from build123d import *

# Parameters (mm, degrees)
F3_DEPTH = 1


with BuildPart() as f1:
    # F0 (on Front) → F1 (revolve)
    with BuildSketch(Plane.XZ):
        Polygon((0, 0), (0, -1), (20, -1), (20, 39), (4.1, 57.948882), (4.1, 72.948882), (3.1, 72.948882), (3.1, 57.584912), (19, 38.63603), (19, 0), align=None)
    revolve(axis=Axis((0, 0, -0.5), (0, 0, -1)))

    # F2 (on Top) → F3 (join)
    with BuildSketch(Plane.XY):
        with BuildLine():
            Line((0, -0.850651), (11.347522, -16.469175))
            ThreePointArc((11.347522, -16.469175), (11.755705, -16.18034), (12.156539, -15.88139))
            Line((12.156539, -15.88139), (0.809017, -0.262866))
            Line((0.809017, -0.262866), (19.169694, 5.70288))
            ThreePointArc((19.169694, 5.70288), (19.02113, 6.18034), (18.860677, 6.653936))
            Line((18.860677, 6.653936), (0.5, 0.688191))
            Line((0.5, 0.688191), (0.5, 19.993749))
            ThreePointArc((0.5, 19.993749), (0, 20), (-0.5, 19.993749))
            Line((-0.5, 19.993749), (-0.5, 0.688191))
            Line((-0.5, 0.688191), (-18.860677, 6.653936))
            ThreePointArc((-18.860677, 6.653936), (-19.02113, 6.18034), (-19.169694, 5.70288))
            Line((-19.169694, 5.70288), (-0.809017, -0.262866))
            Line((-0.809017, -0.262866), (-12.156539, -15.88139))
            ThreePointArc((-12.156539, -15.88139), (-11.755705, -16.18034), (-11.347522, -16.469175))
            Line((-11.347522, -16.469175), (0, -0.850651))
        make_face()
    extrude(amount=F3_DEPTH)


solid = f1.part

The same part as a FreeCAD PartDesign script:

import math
import FreeCAD as App
import Part
import Sketcher
Q = App.Units.Quantity


def add_polygon(sketch, points):
    """Adds a closed chain of lines whose ends are joined by coincident constraints."""
    first, n = sketch.GeometryCount, len(points)
    for a, b in zip(points, points[1:] + points[:1]):
        sketch.addGeometry(Part.LineSegment(App.Vector(*a, 0), App.Vector(*b, 0)), False)
    for i in range(n):
        sketch.addConstraint(Sketcher.Constraint("Coincident", first + i, 2, first + (i + 1) % n, 1))

doc = App.newDocument("Part")
params = doc.addObject("Spreadsheet::Sheet", "Params")
for row, (alias, value) in enumerate([
    ("sketch1_width", "20 mm"),
    ("sketch1_width2", "1 mm"),
    ("sketch1_height", "40 mm"),
    ("sketch1_height2", "15 mm"),
    ("revolution_angle", "360 deg"),
    ("pad1_length", "1 mm"),
], start=1):
    params.set(f"A{row}", alias)
    params.set(f"B{row}", "=" + value)
    params.setAlias(f"B{row}", alias)

body = doc.addObject("PartDesign::Body", "Body")

# Sketch on XZ plane
sketch1 = doc.addObject("Sketcher::SketchObject", "Sketch")
body.addObject(sketch1)
sketch1.AttachmentSupport = (doc.XZ_Plane, [""])
sketch1.MapMode = "FlatFace"
add_polygon(sketch1, [(0, 0), (0, -1), (20, -1), (20, 39), (4.1, 57.9), (4.1, 72.9), (3.1, 72.9), (3.1, 57.6), (19, 38.6), (19, 0)])  # lines 0-9
sketch1.addConstraint(Sketcher.Constraint("Vertical", 0))
sketch1.addConstraint(Sketcher.Constraint("Horizontal", 1))
sketch1.addConstraint(Sketcher.Constraint("Vertical", 2))
sketch1.addConstraint(Sketcher.Constraint("Vertical", 4))
sketch1.addConstraint(Sketcher.Constraint("Horizontal", 5))
sketch1.addConstraint(Sketcher.Constraint("Vertical", 6))
sketch1.addConstraint(Sketcher.Constraint("Vertical", 8))
sketch1.addConstraint(Sketcher.Constraint("Horizontal", 9))
sketch1.addConstraint(Sketcher.Constraint("Coincident", 9, 2, -1, 1))
sketch1.addConstraint(Sketcher.Constraint("Parallel", 3, 7))
sketch1.addConstraint(Sketcher.Constraint("Equal", 5, 0))
sketch1.addConstraint(Sketcher.Constraint("Equal", 3, 7))
sketch1.addConstraint(Sketcher.Constraint("DistanceX", 1, 1, 1, 2, 20.0))
sketch1.addConstraint(Sketcher.Constraint("DistanceX", 5, 2, 5, 1, 1.0))
sketch1.addConstraint(Sketcher.Constraint("DistanceY", 2, 1, 2, 2, 40.0))
sketch1.addConstraint(Sketcher.Constraint("DistanceY", 4, 1, 4, 2, 15.0))
sketch1.addConstraint(Sketcher.Constraint("Angle", 3, Q("130 deg")))
sketch1.addConstraint(Sketcher.Constraint("DistanceX", -1, 1, 3, 2, 4.1))
sketch1.addConstraint(Sketcher.Constraint("DistanceY", 6, 2, 6, 1, 15.36397))
sketch1.setExpression("Constraints[22]", "Params.sketch1_width")
sketch1.setExpression("Constraints[23]", "Params.sketch1_width2")
sketch1.setExpression("Constraints[24]", "Params.sketch1_height")
sketch1.setExpression("Constraints[25]", "Params.sketch1_height2")
revolution = doc.addObject("PartDesign::Revolution", "Revolution")
body.addObject(revolution)
revolution.Profile = sketch1
revolution.ReferenceAxis = (sketch1, ["V_Axis"])
revolution.setExpression("Angle", "Params.revolution_angle")

# Sketch on XY plane
sketch2 = doc.addObject("Sketcher::SketchObject", "Sketch001")
body.addObject(sketch2)
sketch2.AttachmentSupport = (doc.XY_Plane, [""])
sketch2.MapMode = "FlatFace"
sketch2.addGeometry(Part.LineSegment(App.Vector(0, -0.850651, 0), App.Vector(11.347522, -16.469175, 0)), False)
sketch2.addGeometry(Part.ArcOfCircle(Part.Circle(App.Vector(0.00084, -0.00115, 0), App.Vector(0, 0, 1), 19.998576), math.radians(-55.432657), math.radians(-52.567366)), False)
sketch2.addGeometry(Part.LineSegment(App.Vector(12.156539, -15.88139, 0), App.Vector(0.809017, -0.262866, 0)), False)
sketch2.addGeometry(Part.LineSegment(App.Vector(0.809017, -0.262866, 0), App.Vector(19.169694, 5.70288, 0)), False)
sketch2.addGeometry(Part.ArcOfCircle(Part.Circle(App.Vector(-0.001199, -0.000393, 0), App.Vector(0, 0, 1), 20.001262), math.radians(16.567557), math.radians(19.432462)), False)
sketch2.addGeometry(Part.LineSegment(App.Vector(18.860677, 6.653936, 0), App.Vector(0.5, 0.688191, 0)), False)
sketch2.addGeometry(Part.LineSegment(App.Vector(0.5, 0.688191, 0), App.Vector(0.5, 19.993749, 0)), False)
sketch2.addGeometry(Part.ArcOfCircle(Part.Circle(App.Vector(0, 0.000074, 0), App.Vector(0, 0, 1), 19.999926), math.radians(88.567451), math.radians(91.432549)), False)
sketch2.addGeometry(Part.LineSegment(App.Vector(-0.5, 19.993749, 0), App.Vector(-0.5, 0.688191, 0)), False)
sketch2.addGeometry(Part.LineSegment(App.Vector(-0.5, 0.688191, 0), App.Vector(-18.860677, 6.653936, 0)), False)
sketch2.addGeometry(Part.ArcOfCircle(Part.Circle(App.Vector(0.001199, -0.000393, 0), App.Vector(0, 0, 1), 20.001262), math.radians(160.567538), math.radians(163.432443)), False)
sketch2.addGeometry(Part.LineSegment(App.Vector(-19.169694, 5.70288, 0), App.Vector(-0.809017, -0.262866, 0)), False)
sketch2.addGeometry(Part.LineSegment(App.Vector(-0.809017, -0.262866, 0), App.Vector(-12.156539, -15.88139, 0)), False)
sketch2.addGeometry(Part.ArcOfCircle(Part.Circle(App.Vector(-0.00084, -0.00115, 0), App.Vector(0, 0, 1), 19.998576), math.radians(-127.432634), math.radians(-124.567343)), False)
sketch2.addGeometry(Part.LineSegment(App.Vector(-11.347522, -16.469175, 0), App.Vector(0, -0.850651, 0)), False)
sketch2.addConstraint(Sketcher.Constraint("Coincident", 0, 2, 1, 1))
sketch2.addConstraint(Sketcher.Constraint("Coincident", 1, 2, 2, 1))
sketch2.addConstraint(Sketcher.Constraint("Coincident", 2, 2, 3, 1))
sketch2.addConstraint(Sketcher.Constraint("Coincident", 3, 2, 4, 1))
sketch2.addConstraint(Sketcher.Constraint("Coincident", 4, 2, 5, 1))
sketch2.addConstraint(Sketcher.Constraint("Coincident", 5, 2, 6, 1))
sketch2.addConstraint(Sketcher.Constraint("Coincident", 6, 2, 7, 1))
sketch2.addConstraint(Sketcher.Constraint("Coincident", 7, 2, 8, 1))
sketch2.addConstraint(Sketcher.Constraint("Coincident", 8, 2, 9, 1))
sketch2.addConstraint(Sketcher.Constraint("Coincident", 9, 2, 10, 1))
sketch2.addConstraint(Sketcher.Constraint("Coincident", 10, 2, 11, 1))
sketch2.addConstraint(Sketcher.Constraint("Coincident", 11, 2, 12, 1))
sketch2.addConstraint(Sketcher.Constraint("Coincident", 12, 2, 13, 1))
sketch2.addConstraint(Sketcher.Constraint("Coincident", 13, 2, 14, 1))
sketch2.addConstraint(Sketcher.Constraint("Coincident", 14, 2, 0, 1))
sketch2.addConstraint(Sketcher.Constraint("Vertical", 6))
sketch2.addConstraint(Sketcher.Constraint("Vertical", 8))
sketch2.addConstraint(Sketcher.Constraint("Equal", 4, 10))
sketch2.addConstraint(Sketcher.Constraint("Equal", 1, 13))
sketch2.addConstraint(Sketcher.Constraint("Symmetric", 4, 3, 10, 3, -2))
sketch2.addConstraint(Sketcher.Constraint("Symmetric", 1, 3, 13, 3, -2))
sketch2.addConstraint(Sketcher.Constraint("Symmetric", 6, 2, 7, 2, -2))
sketch2.addConstraint(Sketcher.Constraint("Symmetric", 2, 2, 11, 2, -2))
sketch2.addConstraint(Sketcher.Constraint("PointOnObject", 14, 2, -2))
sketch2.addConstraint(Sketcher.Constraint("Parallel", 0, 2))
sketch2.addConstraint(Sketcher.Constraint("Parallel", 3, 5))
sketch2.addConstraint(Sketcher.Constraint("Parallel", 9, 11))
sketch2.addConstraint(Sketcher.Constraint("Parallel", 12, 14))
sketch2.addConstraint(Sketcher.Constraint("Horizontal", 5, 2, 8, 2))
sketch2.addConstraint(Sketcher.Constraint("Horizontal", 4, 2, 9, 2))
sketch2.addConstraint(Sketcher.Constraint("Horizontal", 1, 2, 12, 2))
sketch2.addConstraint(Sketcher.Constraint("Equal", 0, 2))
sketch2.addConstraint(Sketcher.Constraint("Equal", 2, 3))
sketch2.addConstraint(Sketcher.Constraint("Equal", 3, 5))
sketch2.addConstraint(Sketcher.Constraint("Angle", 0, Q("-54 deg")))
sketch2.addConstraint(Sketcher.Constraint("Angle", 3, Q("18.000001 deg")))
sketch2.addConstraint(Sketcher.Constraint("DistanceX", 7, 2, 6, 2, 1.0))
sketch2.addConstraint(Sketcher.Constraint("Radius", 4, 20.001262))
sketch2.addConstraint(Sketcher.Constraint("Radius", 1, 19.998576))
sketch2.addConstraint(Sketcher.Constraint("Radius", 7, 19.999926))
sketch2.addConstraint(Sketcher.Constraint("DistanceY", 6, 1, 6, 2, 19.305558))
sketch2.addConstraint(Sketcher.Constraint("DistanceX", 4, 3, -1, 1, 0.001199))
sketch2.addConstraint(Sketcher.Constraint("DistanceX", 1, 3, 1, 2, 12.155699))
sketch2.addConstraint(Sketcher.Constraint("DistanceY", 1, 3, 6, 2, 19.994899))
sketch2.addConstraint(Sketcher.Constraint("DistanceY", 14, 2, 1, 3, 0.849501))
sketch2.addConstraint(Sketcher.Constraint("DistanceY", 1, 3, -1, 1, 0.00115))
pad1 = doc.addObject("PartDesign::Pad", "Pad")
body.addObject(pad1)
pad1.Profile = sketch2
pad1.setExpression("Length", "Params.pad1_length")

doc.recompute()
